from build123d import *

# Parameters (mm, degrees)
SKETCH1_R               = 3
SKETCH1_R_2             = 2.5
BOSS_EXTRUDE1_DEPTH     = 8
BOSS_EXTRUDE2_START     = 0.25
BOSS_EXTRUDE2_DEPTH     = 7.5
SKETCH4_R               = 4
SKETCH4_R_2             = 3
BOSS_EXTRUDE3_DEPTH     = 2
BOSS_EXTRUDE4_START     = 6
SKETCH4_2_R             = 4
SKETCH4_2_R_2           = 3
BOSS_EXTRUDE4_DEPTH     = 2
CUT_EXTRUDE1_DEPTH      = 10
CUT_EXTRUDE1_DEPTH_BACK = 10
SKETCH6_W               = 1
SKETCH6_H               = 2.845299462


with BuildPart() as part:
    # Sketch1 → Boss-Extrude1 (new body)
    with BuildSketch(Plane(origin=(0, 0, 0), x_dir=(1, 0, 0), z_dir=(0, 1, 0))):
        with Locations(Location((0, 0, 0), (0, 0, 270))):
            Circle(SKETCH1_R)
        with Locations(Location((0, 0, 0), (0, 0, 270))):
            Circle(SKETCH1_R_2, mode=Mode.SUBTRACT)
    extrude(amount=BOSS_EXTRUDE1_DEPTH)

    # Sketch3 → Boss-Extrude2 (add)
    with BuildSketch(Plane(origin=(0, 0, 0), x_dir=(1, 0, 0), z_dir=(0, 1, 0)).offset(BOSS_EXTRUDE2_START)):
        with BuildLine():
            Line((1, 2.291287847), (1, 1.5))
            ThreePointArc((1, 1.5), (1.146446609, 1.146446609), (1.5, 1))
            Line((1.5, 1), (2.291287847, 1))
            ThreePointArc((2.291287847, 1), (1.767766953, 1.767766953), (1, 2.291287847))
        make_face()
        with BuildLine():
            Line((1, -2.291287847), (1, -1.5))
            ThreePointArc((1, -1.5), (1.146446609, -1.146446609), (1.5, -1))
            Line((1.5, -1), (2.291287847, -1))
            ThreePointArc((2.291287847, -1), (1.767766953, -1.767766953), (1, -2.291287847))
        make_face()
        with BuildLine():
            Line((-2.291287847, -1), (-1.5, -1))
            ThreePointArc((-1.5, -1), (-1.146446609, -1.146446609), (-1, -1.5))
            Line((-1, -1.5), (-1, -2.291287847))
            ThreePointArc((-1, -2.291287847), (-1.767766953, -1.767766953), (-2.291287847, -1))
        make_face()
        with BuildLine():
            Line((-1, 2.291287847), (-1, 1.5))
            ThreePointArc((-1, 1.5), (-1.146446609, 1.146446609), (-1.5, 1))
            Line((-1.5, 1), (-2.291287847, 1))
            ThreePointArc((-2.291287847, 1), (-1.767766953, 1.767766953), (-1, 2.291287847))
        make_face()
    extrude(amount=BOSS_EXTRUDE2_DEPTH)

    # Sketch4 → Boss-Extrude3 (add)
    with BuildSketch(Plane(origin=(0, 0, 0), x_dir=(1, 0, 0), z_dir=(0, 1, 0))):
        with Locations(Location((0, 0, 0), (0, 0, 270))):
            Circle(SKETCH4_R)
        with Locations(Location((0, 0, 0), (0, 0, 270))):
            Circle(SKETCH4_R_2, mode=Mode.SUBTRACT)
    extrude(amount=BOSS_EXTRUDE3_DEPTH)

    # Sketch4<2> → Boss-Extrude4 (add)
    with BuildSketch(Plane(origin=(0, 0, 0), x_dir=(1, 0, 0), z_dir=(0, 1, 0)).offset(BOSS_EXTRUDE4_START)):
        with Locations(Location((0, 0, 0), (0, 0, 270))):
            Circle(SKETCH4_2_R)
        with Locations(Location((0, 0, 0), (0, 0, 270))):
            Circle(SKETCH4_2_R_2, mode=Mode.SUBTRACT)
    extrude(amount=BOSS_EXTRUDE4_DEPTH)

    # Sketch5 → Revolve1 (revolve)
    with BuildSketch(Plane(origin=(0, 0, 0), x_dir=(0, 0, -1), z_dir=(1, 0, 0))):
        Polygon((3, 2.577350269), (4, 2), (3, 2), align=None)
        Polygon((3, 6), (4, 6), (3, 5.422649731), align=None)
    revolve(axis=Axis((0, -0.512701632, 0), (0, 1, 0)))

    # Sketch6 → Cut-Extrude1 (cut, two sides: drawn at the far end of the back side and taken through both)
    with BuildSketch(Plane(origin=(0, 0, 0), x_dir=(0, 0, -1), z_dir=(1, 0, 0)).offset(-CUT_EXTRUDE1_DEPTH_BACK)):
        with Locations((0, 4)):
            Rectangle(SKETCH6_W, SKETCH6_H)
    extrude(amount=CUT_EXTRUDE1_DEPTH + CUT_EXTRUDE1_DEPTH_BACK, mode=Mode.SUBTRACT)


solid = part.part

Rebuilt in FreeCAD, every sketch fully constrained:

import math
import FreeCAD as App
import Part
import Sketcher
from FreeCAD import Vector
Q = App.Units.Quantity


def add_polygon(sketch, points):
    """Adds a closed chain of lines whose ends are joined by coincident constraints."""
    first, n = sketch.GeometryCount, len(points)
    for a, b in zip(points, points[1:] + points[:1]):
        sketch.addGeometry(Part.LineSegment(App.Vector(*a, 0), App.Vector(*b, 0)), False)
    for i in range(n):
        sketch.addConstraint(Sketcher.Constraint("Coincident", first + i, 2, first + (i + 1) % n, 1))

doc = App.newDocument("Part")
params = doc.addObject("Spreadsheet::Sheet", "Params")
for row, (alias, value) in enumerate([
    ("sketch1_diameter", "6 mm"),
    ("sketch1_diameter2", "5 mm"),
    ("pad1_length", "8 mm"),
    ("sketch2_radius", "0.5 mm"),
    ("sketch2_radius2", "2.5 mm"),
    ("pad2_length", "7.5 mm"),
    ("sketch3_diameter", "8 mm"),
    ("sketch3_diameter2", "6 mm"),
    ("pad3_length", "2 mm"),
    ("sketch4_diameter", "8 mm"),
    ("sketch4_diameter2", "6 mm"),
    ("pad4_length", "2 mm"),
    ("sketch5_height", "1 mm"),
    ("revolution_angle", "360 deg"),
    ("sketch6_height", "1 mm"),
], start=1):
    params.set(f"A{row}", alias)
    params.set(f"B{row}", "=" + value)
    params.setAlias(f"B{row}", alias)

body = doc.addObject("PartDesign::Body", "Body")

sketch1 = doc.addObject("Sketcher::SketchObject", "Sketch")
body.addObject(sketch1)
sketch1.AttachmentSupport = (doc.XZ_Plane, [""])
sketch1.MapMode = "FlatFace"
sketch1.addGeometry([
    Part.Circle(Vector(0, 0, 0), Vector(0, 0, 1), 3),
    Part.Circle(Vector(0, 0, 0), Vector(0, 0, 1), 2.5),
], False)
sketch1.addConstraint([
    Sketcher.Constraint("Coincident", 0, 3, -1, 1),
    Sketcher.Constraint("Coincident", 1, 3, -1, 1),
    Sketcher.Constraint("Diameter", 0, 6.0),
    Sketcher.Constraint("Diameter", 1, 5.0),
])
sketch1.setExpression("Constraints[2]", "Params.sketch1_diameter")
sketch1.setExpression("Constraints[3]", "Params.sketch1_diameter2")
pad1 = doc.addObject("PartDesign::Pad", "Pad")
body.addObject(pad1)
pad1.Profile = sketch1
pad1.setExpression("Length", "Params.pad1_length")
pad1.Reversed = True

sketch2 = doc.addObject("Sketcher::SketchObject", "Sketch001")
body.addObject(sketch2)
sketch2.AttachmentSupport = (doc.XZ_Plane, [""])
sketch2.MapMode = "FlatFace"
sketch2.AttachmentOffset = App.Placement(Vector(0, 0, -0.25), App.Rotation())
sketch2.addGeometry([
    Part.LineSegment(Vector(1, -2.291288, 0), Vector(1, -1.5, 0)),
    Part.ArcOfCircle(Part.Circle(Vector(1.5, -1.5, 0), Vector(0, 0, 1), 0.5), math.radians(90), math.radians(180)),
    Part.LineSegment(Vector(1.5, -1, 0), Vector(2.291288, -1, 0)),
    Part.ArcOfCircle(Part.Circle(Vector(0, 0, 0), Vector(0, 0, 1), 2.5), math.radians(-66.421822), math.radians(-23.578178)),
    Part.LineSegment(Vector(1, 1.5, 0), Vector(1, 2.291288, 0)),
    Part.ArcOfCircle(Part.Circle(Vector(0, 0, 0), Vector(0, 0, 1), 2.5), math.radians(23.578178), math.radians(66.421822)),
    Part.LineSegment(Vector(2.291288, 1, 0), Vector(1.5, 1, 0)),
    Part.ArcOfCircle(Part.Circle(Vector(1.5, 1.5, 0), Vector(0, 0, 1), 0.5), math.radians(180), math.radians(270)),
    Part.LineSegment(Vector(-1.5, 1, 0), Vector(-2.291288, 1, 0)),
    Part.ArcOfCircle(Part.Circle(Vector(0, 0, 0), Vector(0, 0, 1), 2.5), math.radians(113.578178), math.radians(156.421822)),
    Part.LineSegment(Vector(-1, 2.291288, 0), Vector(-1, 1.5, 0)),
    Part.ArcOfCircle(Part.Circle(Vector(-1.5, 1.5, 0), Vector(0, 0, 1), 0.5), math.radians(-90), math.radians(0)),
    Part.LineSegment(Vector(-1, -1.5, 0), Vector(-1, -2.291288, 0)),
    Part.ArcOfCircle(Part.Circle(Vector(0, 0, 0), Vector(0, 0, 1), 2.5), math.radians(-156.421822), math.radians(-113.578178)),
    Part.LineSegment(Vector(-2.291288, -1, 0), Vector(-1.5, -1, 0)),
    Part.ArcOfCircle(Part.Circle(Vector(-1.5, -1.5, 0), Vector(0, 0, 1), 0.5), math.radians(0), math.radians(90)),
], False)
sketch2.addConstraint([
    Sketcher.Constraint("Tangent", 0, 2, 1, 2),
    Sketcher.Constraint("Tangent", 1, 1, 2, 1),
    Sketcher.Constraint("Coincident", 2, 2, 3, 2),
    Sketcher.Constraint("Coincident", 3, 1, 0, 1),
    Sketcher.Constraint("Coincident", 4, 2, 5, 2),
    Sketcher.Constraint("Coincident", 5, 1, 6, 1),
    Sketcher.Constraint("Tangent", 6, 2, 7, 2),
    Sketcher.Constraint("Tangent", 7, 1, 4, 1),
    Sketcher.Constraint("Coincident", 8, 2, 9, 2),
    Sketcher.Constraint("Coincident", 9, 1, 10, 1),
    Sketcher.Constraint("Tangent", 10, 2, 11, 2),
    Sketcher.Constraint("Tangent", 11, 1, 8, 1),
    Sketcher.Constraint("Coincident", 12, 2, 13, 2),
    Sketcher.Constraint("Coincident", 13, 1, 14, 1),
    Sketcher.Constraint("Tangent", 14, 2, 15, 2),
    Sketcher.Constraint("Tangent", 15, 1, 12, 1),
    Sketcher.Constraint("Vertical", 0),
    Sketcher.Constraint("Horizontal", 2),
    Sketcher.Constraint("Vertical", 4),
    Sketcher.Constraint("Horizontal", 6),
    Sketcher.Constraint("Horizontal", 8),
    Sketcher.Constraint("Vertical", 10),
    Sketcher.Constraint("Vertical", 12),
    Sketcher.Constraint("Horizontal", 14),
    Sketcher.Constraint("Coincident", 3, 3, -1, 1),
    Sketcher.Constraint("Coincident", 5, 3, -1, 1),
    Sketcher.Constraint("Coincident", 9, 3, -1, 1),
    Sketcher.Constraint("Coincident", 13, 3, -1, 1),
    Sketcher.Constraint("Equal", 3, 5),
    Sketcher.Constraint("Equal", 1, 7),
    Sketcher.Constraint("Equal", 5, 9),
    Sketcher.Constraint("Equal", 7, 11),
    Sketcher.Constraint("Equal", 9, 13),
    Sketcher.Constraint("Equal", 11, 15),
    Sketcher.Constraint("Symmetric", 1, 3, 11, 3, -1, 1),
    Sketcher.Constraint("Symmetric", 7, 3, 15, 3, -1, 1),
    Sketcher.Constraint("Symmetric", 7, 3, 11, 3, -2),
    Sketcher.Constraint("Equal", 14, 0),
    Sketcher.Constraint("Radius", 1, 0.5),
    Sketcher.Constraint("Radius", 3, 2.5),
    Sketcher.Constraint("DistanceX", -1, 1, 0, 2, 1.0),
])
sketch2.setExpression("Constraints[38]", "Params.sketch2_radius")
sketch2.setExpression("Constraints[39]", "Params.sketch2_radius2")
pad2 = doc.addObject("PartDesign::Pad", "Pad001")
body.addObject(pad2)
pad2.Profile = sketch2
pad2.setExpression("Length", "Params.pad2_length")
pad2.Reversed = True

sketch3 = doc.addObject("Sketcher::SketchObject", "Sketch002")
body.addObject(sketch3)
sketch3.AttachmentSupport = (doc.XZ_Plane, [""])
sketch3.MapMode = "FlatFace"
sketch3.addGeometry([
    Part.Circle(Vector(0, 0, 0), Vector(0, 0, 1), 4),
    Part.Circle(Vector(0, 0, 0), Vector(0, 0, 1), 3),
], False)
sketch3.addConstraint([
    Sketcher.Constraint("Coincident", 0, 3, -1, 1),
    Sketcher.Constraint("Coincident", 1, 3, -1, 1),
    Sketcher.Constraint("Diameter", 0, 8.0),
    Sketcher.Constraint("Diameter", 1, 6.0),
])
sketch3.setExpression("Constraints[2]", "Params.sketch3_diameter")
sketch3.setExpression("Constraints[3]", "Params.sketch3_diameter2")
pad3 = doc.addObject("PartDesign::Pad", "Pad002")
body.addObject(pad3)
pad3.Profile = sketch3
pad3.setExpression("Length", "Params.pad3_length")
pad3.Reversed = True

sketch4 = doc.addObject("Sketcher::SketchObject", "Sketch003")
body.addObject(sketch4)
sketch4.AttachmentSupport = (doc.XZ_Plane, [""])
sketch4.MapMode = "FlatFace"
sketch4.AttachmentOffset = App.Placement(Vector(0, 0, -6), App.Rotation())
sketch4.addGeometry([
    Part.Circle(Vector(0, 0, 0), Vector(0, 0, 1), 4),
    Part.Circle(Vector(0, 0, 0), Vector(0, 0, 1), 3),
], False)
sketch4.addConstraint([
    Sketcher.Constraint("Coincident", 0, 3, -1, 1),
    Sketcher.Constraint("Coincident", 1, 3, -1, 1),
    Sketcher.Constraint("Diameter", 0, 8.0),
    Sketcher.Constraint("Diameter", 1, 6.0),
])
sketch4.setExpression("Constraints[2]", "Params.sketch4_diameter")
sketch4.setExpression("Constraints[3]", "Params.sketch4_diameter2")
pad4 = doc.addObject("PartDesign::Pad", "Pad003")
body.addObject(pad4)
pad4.Profile = sketch4
pad4.setExpression("Length", "Params.pad4_length")
pad4.Reversed = True

sketch5 = doc.addObject("Sketcher::SketchObject", "Sketch004")
body.addObject(sketch5)
sketch5.AttachmentSupport = (doc.YZ_Plane, [""])
sketch5.MapMode = "FlatFace"
add_polygon(sketch5, [(2, -4), (2.57735, -3), (2, -3)])
add_polygon(sketch5, [(6, -4), (6, -3), (5.42265, -3)])
sketch5.addConstraint([
    Sketcher.Constraint("Horizontal", 1),
    Sketcher.Constraint("Vertical", 2),
    Sketcher.Constraint("Vertical", 3),
    Sketcher.Constraint("Horizontal", 4),
    Sketcher.Constraint("Horizontal", 1, 2, 3, 2),
    Sketcher.Constraint("Horizontal", 2, 2, 5, 2),
    Sketcher.Constraint("Equal", 1, 4),
    Sketcher.Constraint("DistanceY", 2, 2, 2, 1, 1.0),
    Sketcher.Constraint("Angle", 0, Q("60 deg")),
    Sketcher.Constraint("DistanceY", 0, 2, -1, 1, 3.0),
    Sketcher.Constraint("DistanceX", -1, 1, 1, 2, 2.0),
    Sketcher.Constraint("DistanceX", -1, 1, 3, 2, 6.0),
])
sketch5.setExpression("Constraints[13]", "Params.sketch5_height")
revolution = doc.addObject("PartDesign::Revolution", "Revolution")
body.addObject(revolution)
revolution.Profile = sketch5
revolution.ReferenceAxis = (sketch5, ["H_Axis"])
revolution.setExpression("Angle", "Params.revolution_angle")

sketch6 = doc.addObject("Sketcher::SketchObject", "Sketch005")
body.addObject(sketch6)
sketch6.AttachmentSupport = (doc.YZ_Plane, [""])
sketch6.MapMode = "FlatFace"
add_polygon(sketch6, [(5.42265, 0.5), (2.57735, 0.5), (2.57735, -0.5), (5.42265, -0.5)])
sketch6.addConstraint([
    Sketcher.Constraint("Horizontal", 0),
    Sketcher.Constraint("Vertical", 1),
    Sketcher.Constraint("Horizontal", 2),
    Sketcher.Constraint("Vertical", 3),
    Sketcher.Constraint("DistanceY", 1, 2, 1, 1, 1.0),
    Sketcher.Constraint("DistanceY", -1, 1, 0, 2, 0.5),
    Sketcher.Constraint("DistanceX", 0, 2, 0, 1, 2.845299),
    Sketcher.Constraint("DistanceX", -1, 1, 0, 2, 2.57735),
])
sketch6.setExpression("Constraints[8]", "Params.sketch6_height")
pocket1 = doc.addObject("PartDesign::Pocket", "Pocket")
body.addObject(pocket1)
pocket1.Profile = sketch6
pocket1.Type = "ThroughAll"
pocket1.Midplane = True

doc.recompute()
